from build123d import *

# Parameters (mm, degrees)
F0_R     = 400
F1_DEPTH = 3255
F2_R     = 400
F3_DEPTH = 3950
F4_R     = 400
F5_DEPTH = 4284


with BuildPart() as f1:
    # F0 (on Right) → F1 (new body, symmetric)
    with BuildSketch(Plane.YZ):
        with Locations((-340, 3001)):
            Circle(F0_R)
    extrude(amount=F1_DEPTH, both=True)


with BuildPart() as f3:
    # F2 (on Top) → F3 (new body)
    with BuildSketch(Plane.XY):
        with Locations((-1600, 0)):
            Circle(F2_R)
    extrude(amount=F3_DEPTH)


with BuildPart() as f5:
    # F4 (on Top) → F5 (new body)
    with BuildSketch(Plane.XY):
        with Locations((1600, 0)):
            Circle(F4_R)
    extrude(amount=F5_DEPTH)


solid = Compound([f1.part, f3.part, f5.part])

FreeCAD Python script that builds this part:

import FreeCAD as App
import Part
import Sketcher
from FreeCAD import Vector

doc = App.newDocument("Part")
body = doc.addObject("PartDesign::Body", "Body")

sketch1 = doc.addObject("Sketcher::SketchObject", "Sketch")
body.addObject(sketch1)
sketch1.AttachmentSupport = (doc.YZ_Plane, [""])
sketch1.MapMode = "FlatFace"
sketch1.addGeometry(Part.Circle(Vector(-340, 3001, 0), Vector(0, 0, 1), 400), False)
sketch1.addConstraint(Sketcher.Constraint("Diameter", 0, 800.0))
sketch1.addConstraint(Sketcher.Constraint("DistanceX", 0, 3, -1, 1, 340.0))
sketch1.addConstraint(Sketcher.Constraint("DistanceY", -1, 1, 0, 3, 3001.0))
pad1 = doc.addObject("PartDesign::Pad", "Pad")
body.addObject(pad1)
pad1.Profile = sketch1
pad1.Length = 6510
pad1.Midplane = True
body2 = doc.addObject("PartDesign::Body", "Body001")

sketch2 = doc.addObject("Sketcher::SketchObject", "Sketch001")
body2.addObject(sketch2)
sketch2.AttachmentSupport = (doc.getObject("XY_Plane001"), [""])
sketch2.MapMode = "FlatFace"
sketch2.addGeometry(Part.Circle(Vector(-1600, 0, 0), Vector(0, 0, 1), 400), False)
sketch2.addConstraint(Sketcher.Constraint("PointOnObject", 0, 3, -1))
sketch2.addConstraint(Sketcher.Constraint("Diameter", 0, 800.0))
sketch2.addConstraint(Sketcher.Constraint("DistanceX", 0, 3, -1, 1, 1600.0))
pad2 = doc.addObject("PartDesign::Pad", "Pad001")
body2.addObject(pad2)
pad2.Profile = sketch2
pad2.Length = 3950
body3 = doc.addObject("PartDesign::Body", "Body002")

sketch3 = doc.addObject("Sketcher::SketchObject", "Sketch002")
body3.addObject(sketch3)
sketch3.AttachmentSupport = (doc.getObject("XY_Plane002"), [""])
sketch3.MapMode = "FlatFace"
sketch3.addGeometry(Part.Circle(Vector(1600, 0, 0), Vector(0, 0, 1), 400), False)
sketch3.addConstraint(Sketcher.Constraint("PointOnObject", 0, 3, -1))
sketch3.addConstraint(Sketcher.Constraint("Diameter", 0, 800.0))
sketch3.addConstraint(Sketcher.Constraint("DistanceX", -1, 1, 0, 3, 1600.0))
pad3 = doc.addObject("PartDesign::Pad", "Pad002")
body3.addObject(pad3)
pad3.Profile = sketch3
pad3.Length = 4284

doc.recompute()
